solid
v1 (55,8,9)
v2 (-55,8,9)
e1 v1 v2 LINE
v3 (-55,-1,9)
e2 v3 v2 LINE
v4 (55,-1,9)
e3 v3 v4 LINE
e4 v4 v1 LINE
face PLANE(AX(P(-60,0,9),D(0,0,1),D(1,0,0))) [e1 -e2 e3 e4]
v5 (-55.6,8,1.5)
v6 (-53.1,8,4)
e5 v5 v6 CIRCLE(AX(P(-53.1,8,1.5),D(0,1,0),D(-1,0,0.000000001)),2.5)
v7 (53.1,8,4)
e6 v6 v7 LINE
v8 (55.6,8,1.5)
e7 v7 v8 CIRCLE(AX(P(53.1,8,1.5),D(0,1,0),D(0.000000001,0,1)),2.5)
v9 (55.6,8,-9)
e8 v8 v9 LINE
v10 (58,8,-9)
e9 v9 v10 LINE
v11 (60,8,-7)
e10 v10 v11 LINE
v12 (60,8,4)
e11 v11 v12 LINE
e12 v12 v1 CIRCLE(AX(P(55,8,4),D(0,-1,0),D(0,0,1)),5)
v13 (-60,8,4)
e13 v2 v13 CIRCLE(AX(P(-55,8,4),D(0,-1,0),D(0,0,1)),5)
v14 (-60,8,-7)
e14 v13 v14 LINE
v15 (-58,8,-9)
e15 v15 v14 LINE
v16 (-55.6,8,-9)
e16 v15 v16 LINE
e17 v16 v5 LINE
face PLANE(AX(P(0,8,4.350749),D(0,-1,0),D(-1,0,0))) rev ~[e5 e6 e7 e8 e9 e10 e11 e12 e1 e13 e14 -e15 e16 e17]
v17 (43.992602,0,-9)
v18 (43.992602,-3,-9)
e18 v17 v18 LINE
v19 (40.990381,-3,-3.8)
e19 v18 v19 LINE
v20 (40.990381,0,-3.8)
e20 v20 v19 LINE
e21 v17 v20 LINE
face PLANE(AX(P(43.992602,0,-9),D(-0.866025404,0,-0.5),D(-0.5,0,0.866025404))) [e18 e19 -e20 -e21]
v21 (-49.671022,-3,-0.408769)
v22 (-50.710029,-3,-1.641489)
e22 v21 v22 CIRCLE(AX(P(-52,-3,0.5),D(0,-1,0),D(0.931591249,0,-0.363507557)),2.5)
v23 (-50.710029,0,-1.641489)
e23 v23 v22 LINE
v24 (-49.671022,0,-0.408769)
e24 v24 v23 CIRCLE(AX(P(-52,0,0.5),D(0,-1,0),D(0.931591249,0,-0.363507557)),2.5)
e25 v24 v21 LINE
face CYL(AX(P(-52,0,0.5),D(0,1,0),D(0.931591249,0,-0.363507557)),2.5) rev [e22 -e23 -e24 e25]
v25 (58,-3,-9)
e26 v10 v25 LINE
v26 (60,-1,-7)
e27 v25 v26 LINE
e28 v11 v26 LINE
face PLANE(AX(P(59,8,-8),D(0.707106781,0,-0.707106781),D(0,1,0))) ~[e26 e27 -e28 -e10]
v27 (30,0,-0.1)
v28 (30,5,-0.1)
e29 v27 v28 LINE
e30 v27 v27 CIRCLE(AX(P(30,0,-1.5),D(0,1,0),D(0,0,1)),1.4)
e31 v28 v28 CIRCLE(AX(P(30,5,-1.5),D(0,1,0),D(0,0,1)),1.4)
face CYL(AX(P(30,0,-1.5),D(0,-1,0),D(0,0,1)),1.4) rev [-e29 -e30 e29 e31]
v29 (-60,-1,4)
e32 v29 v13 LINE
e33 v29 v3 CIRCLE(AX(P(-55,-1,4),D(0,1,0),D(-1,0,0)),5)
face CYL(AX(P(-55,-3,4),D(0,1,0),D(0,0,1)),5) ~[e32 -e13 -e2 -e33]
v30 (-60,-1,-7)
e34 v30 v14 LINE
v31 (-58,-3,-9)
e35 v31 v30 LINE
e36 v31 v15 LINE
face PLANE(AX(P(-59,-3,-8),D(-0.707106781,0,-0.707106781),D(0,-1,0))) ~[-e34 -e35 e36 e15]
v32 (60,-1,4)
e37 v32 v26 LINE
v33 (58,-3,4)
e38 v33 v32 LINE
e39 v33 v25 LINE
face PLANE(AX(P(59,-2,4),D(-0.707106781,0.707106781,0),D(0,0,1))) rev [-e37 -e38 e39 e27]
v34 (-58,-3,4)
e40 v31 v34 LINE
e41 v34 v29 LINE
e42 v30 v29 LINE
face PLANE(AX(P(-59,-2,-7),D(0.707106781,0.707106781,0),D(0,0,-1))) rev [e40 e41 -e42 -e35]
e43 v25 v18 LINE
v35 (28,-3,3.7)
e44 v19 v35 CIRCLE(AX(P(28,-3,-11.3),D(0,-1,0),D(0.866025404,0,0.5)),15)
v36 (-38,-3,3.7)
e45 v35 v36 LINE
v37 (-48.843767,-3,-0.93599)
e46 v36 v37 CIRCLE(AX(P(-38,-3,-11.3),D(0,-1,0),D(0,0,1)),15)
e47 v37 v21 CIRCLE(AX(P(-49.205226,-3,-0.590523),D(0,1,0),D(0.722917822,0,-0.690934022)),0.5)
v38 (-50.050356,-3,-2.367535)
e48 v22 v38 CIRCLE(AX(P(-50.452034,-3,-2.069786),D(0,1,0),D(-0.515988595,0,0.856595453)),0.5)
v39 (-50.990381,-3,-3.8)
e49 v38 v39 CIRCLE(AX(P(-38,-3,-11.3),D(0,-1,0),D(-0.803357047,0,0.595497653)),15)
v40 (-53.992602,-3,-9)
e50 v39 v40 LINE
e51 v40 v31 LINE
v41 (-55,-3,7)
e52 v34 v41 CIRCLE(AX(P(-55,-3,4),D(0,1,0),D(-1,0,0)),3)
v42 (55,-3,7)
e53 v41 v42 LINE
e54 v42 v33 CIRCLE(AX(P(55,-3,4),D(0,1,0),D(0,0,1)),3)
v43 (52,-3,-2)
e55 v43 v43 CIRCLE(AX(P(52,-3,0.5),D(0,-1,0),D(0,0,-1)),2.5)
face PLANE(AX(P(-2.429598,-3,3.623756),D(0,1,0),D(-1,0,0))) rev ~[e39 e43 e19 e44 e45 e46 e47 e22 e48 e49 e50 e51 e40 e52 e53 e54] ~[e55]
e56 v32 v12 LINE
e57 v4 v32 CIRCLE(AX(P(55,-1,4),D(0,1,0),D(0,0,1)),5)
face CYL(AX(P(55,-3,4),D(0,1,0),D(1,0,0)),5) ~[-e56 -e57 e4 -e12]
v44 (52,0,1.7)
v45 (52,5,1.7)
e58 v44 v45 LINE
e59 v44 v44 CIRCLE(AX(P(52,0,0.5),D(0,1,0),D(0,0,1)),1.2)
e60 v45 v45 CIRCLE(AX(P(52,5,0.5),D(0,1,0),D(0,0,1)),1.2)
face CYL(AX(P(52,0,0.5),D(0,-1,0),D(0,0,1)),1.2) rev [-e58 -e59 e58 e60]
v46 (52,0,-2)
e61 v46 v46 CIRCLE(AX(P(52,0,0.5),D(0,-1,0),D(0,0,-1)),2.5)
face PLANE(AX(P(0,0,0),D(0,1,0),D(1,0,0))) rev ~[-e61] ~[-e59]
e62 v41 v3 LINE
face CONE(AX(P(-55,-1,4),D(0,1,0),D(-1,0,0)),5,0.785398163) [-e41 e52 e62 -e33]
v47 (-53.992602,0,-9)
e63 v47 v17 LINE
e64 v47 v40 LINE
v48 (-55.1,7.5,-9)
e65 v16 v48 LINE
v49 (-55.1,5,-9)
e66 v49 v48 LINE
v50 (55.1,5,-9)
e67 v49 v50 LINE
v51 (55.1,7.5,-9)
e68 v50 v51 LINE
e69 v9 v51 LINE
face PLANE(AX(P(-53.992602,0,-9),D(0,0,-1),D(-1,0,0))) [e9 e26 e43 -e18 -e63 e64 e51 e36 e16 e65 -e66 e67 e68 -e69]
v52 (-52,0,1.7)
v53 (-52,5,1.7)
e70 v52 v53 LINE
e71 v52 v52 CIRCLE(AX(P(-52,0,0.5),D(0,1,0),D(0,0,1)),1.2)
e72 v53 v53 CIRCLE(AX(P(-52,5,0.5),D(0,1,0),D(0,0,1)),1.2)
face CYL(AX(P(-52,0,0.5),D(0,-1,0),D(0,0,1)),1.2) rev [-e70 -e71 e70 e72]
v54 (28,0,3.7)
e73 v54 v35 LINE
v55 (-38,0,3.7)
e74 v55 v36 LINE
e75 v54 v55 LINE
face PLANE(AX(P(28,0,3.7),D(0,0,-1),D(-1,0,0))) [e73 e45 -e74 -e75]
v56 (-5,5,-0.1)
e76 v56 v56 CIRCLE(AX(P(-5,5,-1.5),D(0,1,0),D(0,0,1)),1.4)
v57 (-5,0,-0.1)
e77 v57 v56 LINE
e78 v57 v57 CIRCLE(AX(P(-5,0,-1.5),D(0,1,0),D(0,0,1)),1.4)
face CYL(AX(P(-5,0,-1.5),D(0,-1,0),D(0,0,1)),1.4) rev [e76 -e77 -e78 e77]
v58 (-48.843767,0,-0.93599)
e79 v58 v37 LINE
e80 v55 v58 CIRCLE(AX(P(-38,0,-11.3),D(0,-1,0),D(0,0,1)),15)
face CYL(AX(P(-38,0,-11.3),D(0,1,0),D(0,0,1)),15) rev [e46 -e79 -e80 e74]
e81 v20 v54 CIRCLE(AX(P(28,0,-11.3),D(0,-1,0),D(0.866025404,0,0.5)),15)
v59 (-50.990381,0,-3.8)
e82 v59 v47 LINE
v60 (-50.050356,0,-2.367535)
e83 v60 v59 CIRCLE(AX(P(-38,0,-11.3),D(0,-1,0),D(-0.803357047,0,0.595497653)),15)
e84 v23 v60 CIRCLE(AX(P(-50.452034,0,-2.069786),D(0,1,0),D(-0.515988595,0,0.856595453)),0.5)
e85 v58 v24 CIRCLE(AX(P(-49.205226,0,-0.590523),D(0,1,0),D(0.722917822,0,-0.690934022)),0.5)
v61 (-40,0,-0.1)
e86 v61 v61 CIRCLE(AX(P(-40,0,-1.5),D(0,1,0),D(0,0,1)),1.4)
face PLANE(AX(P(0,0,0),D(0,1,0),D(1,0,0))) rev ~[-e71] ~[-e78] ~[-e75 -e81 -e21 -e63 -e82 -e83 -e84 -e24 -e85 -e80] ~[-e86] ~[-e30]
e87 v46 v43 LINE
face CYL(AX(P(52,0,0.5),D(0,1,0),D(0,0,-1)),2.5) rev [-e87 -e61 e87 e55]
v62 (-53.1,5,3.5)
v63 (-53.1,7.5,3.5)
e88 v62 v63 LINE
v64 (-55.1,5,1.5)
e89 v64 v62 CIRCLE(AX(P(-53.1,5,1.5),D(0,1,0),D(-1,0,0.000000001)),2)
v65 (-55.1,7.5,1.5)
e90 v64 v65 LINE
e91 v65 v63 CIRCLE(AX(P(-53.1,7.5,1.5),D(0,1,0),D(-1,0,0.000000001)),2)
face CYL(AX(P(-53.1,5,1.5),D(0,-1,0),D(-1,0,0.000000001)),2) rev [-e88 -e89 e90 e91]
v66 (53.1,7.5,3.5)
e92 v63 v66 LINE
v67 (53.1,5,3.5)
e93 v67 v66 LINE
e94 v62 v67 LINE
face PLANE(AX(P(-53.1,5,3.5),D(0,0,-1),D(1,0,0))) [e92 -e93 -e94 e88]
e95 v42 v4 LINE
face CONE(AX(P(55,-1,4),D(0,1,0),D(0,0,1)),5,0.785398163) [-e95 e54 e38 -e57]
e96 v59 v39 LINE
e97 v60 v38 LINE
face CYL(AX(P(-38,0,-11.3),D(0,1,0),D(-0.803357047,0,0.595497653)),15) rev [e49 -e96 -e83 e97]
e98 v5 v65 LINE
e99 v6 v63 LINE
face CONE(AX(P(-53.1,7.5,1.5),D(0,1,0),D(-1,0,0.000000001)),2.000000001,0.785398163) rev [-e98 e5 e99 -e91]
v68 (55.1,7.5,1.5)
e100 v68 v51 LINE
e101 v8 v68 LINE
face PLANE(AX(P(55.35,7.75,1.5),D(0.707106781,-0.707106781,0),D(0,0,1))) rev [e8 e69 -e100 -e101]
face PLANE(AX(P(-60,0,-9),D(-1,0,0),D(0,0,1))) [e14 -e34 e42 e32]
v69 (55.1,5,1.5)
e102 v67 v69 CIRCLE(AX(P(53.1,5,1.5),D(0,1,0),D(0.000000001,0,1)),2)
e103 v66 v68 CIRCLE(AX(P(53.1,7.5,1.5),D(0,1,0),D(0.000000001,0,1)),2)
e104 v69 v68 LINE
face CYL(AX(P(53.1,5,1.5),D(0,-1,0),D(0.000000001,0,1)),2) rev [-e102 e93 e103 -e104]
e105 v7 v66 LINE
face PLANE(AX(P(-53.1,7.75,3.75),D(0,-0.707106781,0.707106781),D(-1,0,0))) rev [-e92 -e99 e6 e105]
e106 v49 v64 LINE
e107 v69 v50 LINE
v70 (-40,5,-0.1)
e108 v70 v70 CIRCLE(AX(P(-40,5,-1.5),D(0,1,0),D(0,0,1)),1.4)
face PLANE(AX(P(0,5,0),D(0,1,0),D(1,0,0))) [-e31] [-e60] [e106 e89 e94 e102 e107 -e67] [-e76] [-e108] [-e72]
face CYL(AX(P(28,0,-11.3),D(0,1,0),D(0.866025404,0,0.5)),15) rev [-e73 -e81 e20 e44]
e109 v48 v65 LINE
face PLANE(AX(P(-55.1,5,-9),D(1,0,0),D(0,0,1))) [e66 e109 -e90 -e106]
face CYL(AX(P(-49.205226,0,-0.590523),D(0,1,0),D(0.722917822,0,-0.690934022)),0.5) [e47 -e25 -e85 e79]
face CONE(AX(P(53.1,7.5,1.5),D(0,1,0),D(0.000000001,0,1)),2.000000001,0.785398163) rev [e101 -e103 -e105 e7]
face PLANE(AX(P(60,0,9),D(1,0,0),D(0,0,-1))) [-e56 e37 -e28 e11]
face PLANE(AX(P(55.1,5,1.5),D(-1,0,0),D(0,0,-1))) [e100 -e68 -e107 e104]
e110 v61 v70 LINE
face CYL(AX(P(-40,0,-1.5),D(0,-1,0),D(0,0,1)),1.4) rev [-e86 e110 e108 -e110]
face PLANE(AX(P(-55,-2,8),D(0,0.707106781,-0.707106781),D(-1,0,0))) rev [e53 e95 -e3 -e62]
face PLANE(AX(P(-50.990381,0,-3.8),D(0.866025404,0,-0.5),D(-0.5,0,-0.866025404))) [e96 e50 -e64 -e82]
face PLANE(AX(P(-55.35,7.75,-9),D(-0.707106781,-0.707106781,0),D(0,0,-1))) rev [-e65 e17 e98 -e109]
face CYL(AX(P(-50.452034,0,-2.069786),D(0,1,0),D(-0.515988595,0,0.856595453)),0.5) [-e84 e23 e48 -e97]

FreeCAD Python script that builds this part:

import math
import FreeCAD as App
import Part
import Sketcher
from FreeCAD import Vector
Q = App.Units.Quantity


def edges_at(feature, points):
    """Names of the edges that pass closest to the given points."""
    edges = feature.Shape.Edges
    near = lambda p: min(range(len(edges)), key=lambda i: edges[i].distToShape(Part.Vertex(*p))[0])
    return sorted({f"Edge{near(p) + 1}" for p in points})


def add_polygon(sketch, points):
    """Adds a closed chain of lines whose ends are joined by coincident constraints."""
    first, n = sketch.GeometryCount, len(points)
    for a, b in zip(points, points[1:] + points[:1]):
        sketch.addGeometry(Part.LineSegment(App.Vector(*a, 0), App.Vector(*b, 0)), False)
    for i in range(n):
        sketch.addConstraint(Sketcher.Constraint("Coincident", first + i, 2, first + (i + 1) % n, 1))

doc = App.newDocument("Part")
body = doc.addObject("PartDesign::Body", "Body")

# Sketch on XZ plane
sketch1 = body.newObject("Sketcher::SketchObject", "Sketch")
sketch1.AttachmentSupport = (doc.getObject("XZ_Plane"), [""])
sketch1.MapMode = "FlatFace"
add_polygon(sketch1, [(-60, -9), (-60, 9), (60, 9), (60, -9)])  # lines 0-3
sketch1.addGeometry(Part.Circle(Vector(-52, 0.5, 0), Vector(0, 0, 1), 1.2), False)  # 4
sketch1.addGeometry(Part.Circle(Vector(52, 0.5, 0), Vector(0, 0, 1), 1.2), False)  # 5
sketch1.addGeometry(Part.Circle(Vector(-40, -1.5, 0), Vector(0, 0, 1), 1.4), False)  # 6
sketch1.addGeometry(Part.Circle(Vector(-5, -1.5, 0), Vector(0, 0, 1), 1.4), False)  # 7
sketch1.addGeometry(Part.Circle(Vector(30, -1.5, 0), Vector(0, 0, 1), 1.4), False)  # 8
sketch1.addConstraint([
    Sketcher.Constraint("Vertical", 0),
    Sketcher.Constraint("Horizontal", 1),
    Sketcher.Constraint("Vertical", 2),
    Sketcher.Constraint("Horizontal", 3),
    Sketcher.Constraint("Equal", 4, 5),
    Sketcher.Constraint("Equal", 6, 7),
    Sketcher.Constraint("Equal", 7, 8),
    Sketcher.Constraint("Symmetric", 0, 2, 2, 2, -1, 1),
    Sketcher.Constraint("Symmetric", 4, 3, 5, 3, -2),
    Sketcher.Constraint("Horizontal", 6, 3, 7, 3),
    Sketcher.Constraint("Horizontal", 7, 3, 8, 3),
    Sketcher.Constraint("Diameter", 4, 2.4),
    Sketcher.Constraint("Diameter", 6, 2.8),
    Sketcher.Constraint("DistanceX", 1, 1, 1, 2, 120.0),
    Sketcher.Constraint("DistanceY", 0, 1, 0, 2, 18.0),
    Sketcher.Constraint("DistanceX", 4, 3, -1, 1, 52.0),
    Sketcher.Constraint("DistanceX", 6, 3, -1, 1, 40.0),
    Sketcher.Constraint("DistanceX", 7, 3, -1, 1, 5.0),
    Sketcher.Constraint("DistanceX", -1, 1, 8, 3, 30.0),
    Sketcher.Constraint("DistanceY", 6, 3, 4, 3, 2.0),
    Sketcher.Constraint("DistanceY", -1, 1, 4, 3, 0.5),
])
pad1 = body.newObject("PartDesign::Pad", "Pad")
pad1.Profile = sketch1
pad1.Length = 5
pad1.Reversed = True

# Sketch on XZ plane
sketch2 = body.newObject("Sketcher::SketchObject", "Sketch001")
sketch2.AttachmentSupport = (doc.getObject("XZ_Plane"), [""])
sketch2.MapMode = "FlatFace"
sketch2.AttachmentOffset = App.Placement(Vector(0, 0, -5), App.Rotation())
sketch2.addGeometry([
    Part.LineSegment(Vector(-55.1, 1.5, 0), Vector(-55.1, -9, 0)),  # 0
    Part.LineSegment(Vector(-55.1, -9, 0), Vector(-60, -9, 0)),  # 1
    Part.LineSegment(Vector(-60, -9, 0), Vector(-60, 9, 0)),  # 2
    Part.LineSegment(Vector(-60, 9, 0), Vector(60, 9, 0)),  # 3
    Part.LineSegment(Vector(60, 9, 0), Vector(60, -9, 0)),  # 4
    Part.LineSegment(Vector(60, -9, 0), Vector(55.1, -9, 0)),  # 5
    Part.LineSegment(Vector(55.1, -9, 0), Vector(55.1, 1.5, 0)),  # 6
    Part.ArcOfCircle(Part.Circle(Vector(53.1, 1.5, 0), Vector(0, 0, 1), 2), math.radians(0), math.radians(90)),  # 7
    Part.LineSegment(Vector(53.1, 3.5, 0), Vector(-53.1, 3.5, 0)),  # 8
    Part.ArcOfCircle(Part.Circle(Vector(-53.1, 1.5, 0), Vector(0, 0, 1), 2), math.radians(90), math.radians(180)),  # 9
], False)
sketch2.addConstraint([
    Sketcher.Constraint("Coincident", 0, 2, 1, 1),
    Sketcher.Constraint("Coincident", 1, 2, 2, 1),
    Sketcher.Constraint("Coincident", 2, 2, 3, 1),
    Sketcher.Constraint("Coincident", 3, 2, 4, 1),
    Sketcher.Constraint("Coincident", 4, 2, 5, 1),
    Sketcher.Constraint("Coincident", 5, 2, 6, 1),
    Sketcher.Constraint("Tangent", 6, 2, 7, 1),
    Sketcher.Constraint("Tangent", 7, 2, 8, 1),
    Sketcher.Constraint("Tangent", 8, 2, 9, 1),
    Sketcher.Constraint("Tangent", 9, 2, 0, 1),
    Sketcher.Constraint("Vertical", 0),
    Sketcher.Constraint("Horizontal", 1),
    Sketcher.Constraint("Vertical", 2),
    Sketcher.Constraint("Horizontal", 3),
    Sketcher.Constraint("Vertical", 4),
    Sketcher.Constraint("Horizontal", 5),
    Sketcher.Constraint("Vertical", 6),
    Sketcher.Constraint("Horizontal", 8),
    Sketcher.Constraint("Equal", 7, 9),
    Sketcher.Constraint("Symmetric", 1, 2, 3, 2, -1, 1),
    Sketcher.Constraint("Symmetric", 0, 2, 5, 2, -2),
    Sketcher.Constraint("Radius", 7, 2.0),
    Sketcher.Constraint("DistanceX", 3, 1, 3, 2, 120.0),
    Sketcher.Constraint("DistanceY", 2, 1, 2, 2, 18.0),
    Sketcher.Constraint("DistanceX", 1, 2, 1, 1, 4.9),
    Sketcher.Constraint("DistanceY", 0, 2, 0, 1, 10.5),
])
pad2 = body.newObject("PartDesign::Pad", "Pad001")
pad2.Profile = sketch2
pad2.Length = 3
pad2.Reversed = True

# Sketch on XZ plane
sketch3 = body.newObject("Sketcher::SketchObject", "Sketch002")
sketch3.AttachmentSupport = (doc.getObject("XZ_Plane"), [""])
sketch3.MapMode = "FlatFace"
sketch3.addGeometry([
    Part.LineSegment(Vector(-54, -9, 0), Vector(-51, -3.8, 0)),  # 0
    Part.ArcOfCircle(Part.Circle(Vector(-38, -11.3, 0), Vector(0, 0, 1), 15), math.radians(143.45), math.radians(150)),  # 1
    Part.ArcOfCircle(Part.Circle(Vector(-50.5, -2.1, 0), Vector(0, 0, 1), 0.5), math.radians(-37), math.radians(121)),  # 2
    Part.ArcOfCircle(Part.Circle(Vector(-52, 0.5, 0), Vector(0, 0, 1), 2.5), math.radians(-21), math.radians(301)),  # 3
    Part.ArcOfCircle(Part.Circle(Vector(-49.2, -0.6, 0), Vector(0, 0, 1), 0.5), math.radians(159), math.radians(316)),  # 4
    Part.ArcOfCircle(Part.Circle(Vector(-38, -11.3, 0), Vector(0, 0, 1), 15), math.radians(90), math.radians(136)),  # 5
    Part.LineSegment(Vector(-38, 3.7, 0), Vector(28, 3.7, 0)),  # 6
    Part.ArcOfCircle(Part.Circle(Vector(28, -11.3, 0), Vector(0, 0, 1), 15), math.radians(30), math.radians(90)),  # 7
    Part.LineSegment(Vector(41, -3.8, 0), Vector(44, -9, 0)),  # 8
    Part.LineSegment(Vector(44, -9, 0), Vector(60, -9, 0)),  # 9
    Part.LineSegment(Vector(60, -9, 0), Vector(60, 9, 0)),  # 10
    Part.LineSegment(Vector(60, 9, 0), Vector(-60, 9, 0)),  # 11
    Part.LineSegment(Vector(-60, 9, 0), Vector(-60, -9, 0)),  # 12
    Part.LineSegment(Vector(-60, -9, 0), Vector(-54, -9, 0)),  # 13
    Part.Circle(Vector(52, 0.5, 0), Vector(0, 0, 1), 2.5),  # 14
], False)
sketch3.addConstraint([
    Sketcher.Constraint("Tangent", 0, 2, 1, 2),
    Sketcher.Constraint("Tangent", 1, 1, 2, 1),
    Sketcher.Constraint("Tangent", 2, 2, 3, 2),
    Sketcher.Constraint("Tangent", 3, 1, 4, 1),
    Sketcher.Constraint("Tangent", 4, 2, 5, 2),
    Sketcher.Constraint("Tangent", 5, 1, 6, 1),
    Sketcher.Constraint("Tangent", 6, 2, 7, 2),
    Sketcher.Constraint("Tangent", 7, 1, 8, 1),
    Sketcher.Constraint("Coincident", 8, 2, 9, 1),
    Sketcher.Constraint("Coincident", 9, 2, 10, 1),
    Sketcher.Constraint("Coincident", 10, 2, 11, 1),
    Sketcher.Constraint("Coincident", 11, 2, 12, 1),
    Sketcher.Constraint("Coincident", 12, 2, 13, 1),
    Sketcher.Constraint("Coincident", 13, 2, 0, 1),
    Sketcher.Constraint("Horizontal", 6),
    Sketcher.Constraint("Horizontal", 9),
    Sketcher.Constraint("Vertical", 10),
    Sketcher.Constraint("Horizontal", 11),
    Sketcher.Constraint("Vertical", 12),
    Sketcher.Constraint("Horizontal", 13),
    Sketcher.Constraint("Coincident", 5, 3, 1, 3),
    Sketcher.Constraint("Equal", 2, 4),
    Sketcher.Constraint("Equal", 1, 5),
    Sketcher.Constraint("Equal", 5, 7),
    Sketcher.Constraint("Equal", 3, 14),
    Sketcher.Constraint("Symmetric", 9, 2, 11, 2, -1, 1),
    Sketcher.Constraint("Symmetric", 3, 3, 14, 3, -2),
    Sketcher.Constraint("Horizontal", 0, 2, 7, 1),
    Sketcher.Constraint("Horizontal", 9, 2, 12, 2),
    Sketcher.Constraint("Diameter", 14, 5.0),
    Sketcher.Constraint("Radius", 1, 15.0),
    Sketcher.Constraint("Radius", 2, 0.5),
    Sketcher.Constraint("DistanceX", 6, 1, 6, 2, 66.0),
    Sketcher.Constraint("DistanceX", 11, 2, 11, 1, 120.0),
    Sketcher.Constraint("DistanceY", 10, 1, 10, 2, 18.0),
    Sketcher.Constraint("Angle", 0, Q("60 deg")),
    Sketcher.Constraint("DistanceX", 1, 3, -1, 1, 38.0),
    Sketcher.Constraint("DistanceX", 3, 3, -1, 1, 52.0),
    Sketcher.Constraint("DistanceY", 1, 3, -1, 1, 11.3),
    Sketcher.Constraint("DistanceY", -1, 1, 3, 3, 0.5),
])
pad3 = body.newObject("PartDesign::Pad", "Pad002")
pad3.Profile = sketch3
pad3.Length = 3
doc.recompute()

fillet = body.newObject("PartDesign::Fillet", "Fillet")
fillet.Base = (pad3, edges_at(pad3, [(60, 2.5, 9), (-60, 2.5, 9)]))
fillet.Radius = 5
doc.recompute()

chamfer = body.newObject("PartDesign::Chamfer", "Chamfer")
chamfer.Base = (fillet, edges_at(fillet, [
    (55.1, 8, -3.75),
    (54.514, 8, 2.914),
    (0, 8, 3.5),
    (-54.514, 8, 2.914),
    (-55.1, 8, -3.75),
]))
chamfer.Size = 0.5
doc.recompute()

chamfer2 = body.newObject("PartDesign::Chamfer", "Chamfer001")
chamfer2.Base = (chamfer, edges_at(chamfer, [(-60, 2.5, -9), (60, 2.5, -9)]))
chamfer2.Size = 2
doc.recompute()

chamfer3 = body.newObject("PartDesign::Chamfer", "Chamfer002")
chamfer3.Base = (chamfer2, edges_at(chamfer2, [
    (60, -3, -1.5),
    (-60, -3, -1.5),
    (58.536, -3, 7.536),
    (-58.536, -3, 7.536),
    (0, -3, 9),
]))
chamfer3.Size = 2

doc.recompute()
